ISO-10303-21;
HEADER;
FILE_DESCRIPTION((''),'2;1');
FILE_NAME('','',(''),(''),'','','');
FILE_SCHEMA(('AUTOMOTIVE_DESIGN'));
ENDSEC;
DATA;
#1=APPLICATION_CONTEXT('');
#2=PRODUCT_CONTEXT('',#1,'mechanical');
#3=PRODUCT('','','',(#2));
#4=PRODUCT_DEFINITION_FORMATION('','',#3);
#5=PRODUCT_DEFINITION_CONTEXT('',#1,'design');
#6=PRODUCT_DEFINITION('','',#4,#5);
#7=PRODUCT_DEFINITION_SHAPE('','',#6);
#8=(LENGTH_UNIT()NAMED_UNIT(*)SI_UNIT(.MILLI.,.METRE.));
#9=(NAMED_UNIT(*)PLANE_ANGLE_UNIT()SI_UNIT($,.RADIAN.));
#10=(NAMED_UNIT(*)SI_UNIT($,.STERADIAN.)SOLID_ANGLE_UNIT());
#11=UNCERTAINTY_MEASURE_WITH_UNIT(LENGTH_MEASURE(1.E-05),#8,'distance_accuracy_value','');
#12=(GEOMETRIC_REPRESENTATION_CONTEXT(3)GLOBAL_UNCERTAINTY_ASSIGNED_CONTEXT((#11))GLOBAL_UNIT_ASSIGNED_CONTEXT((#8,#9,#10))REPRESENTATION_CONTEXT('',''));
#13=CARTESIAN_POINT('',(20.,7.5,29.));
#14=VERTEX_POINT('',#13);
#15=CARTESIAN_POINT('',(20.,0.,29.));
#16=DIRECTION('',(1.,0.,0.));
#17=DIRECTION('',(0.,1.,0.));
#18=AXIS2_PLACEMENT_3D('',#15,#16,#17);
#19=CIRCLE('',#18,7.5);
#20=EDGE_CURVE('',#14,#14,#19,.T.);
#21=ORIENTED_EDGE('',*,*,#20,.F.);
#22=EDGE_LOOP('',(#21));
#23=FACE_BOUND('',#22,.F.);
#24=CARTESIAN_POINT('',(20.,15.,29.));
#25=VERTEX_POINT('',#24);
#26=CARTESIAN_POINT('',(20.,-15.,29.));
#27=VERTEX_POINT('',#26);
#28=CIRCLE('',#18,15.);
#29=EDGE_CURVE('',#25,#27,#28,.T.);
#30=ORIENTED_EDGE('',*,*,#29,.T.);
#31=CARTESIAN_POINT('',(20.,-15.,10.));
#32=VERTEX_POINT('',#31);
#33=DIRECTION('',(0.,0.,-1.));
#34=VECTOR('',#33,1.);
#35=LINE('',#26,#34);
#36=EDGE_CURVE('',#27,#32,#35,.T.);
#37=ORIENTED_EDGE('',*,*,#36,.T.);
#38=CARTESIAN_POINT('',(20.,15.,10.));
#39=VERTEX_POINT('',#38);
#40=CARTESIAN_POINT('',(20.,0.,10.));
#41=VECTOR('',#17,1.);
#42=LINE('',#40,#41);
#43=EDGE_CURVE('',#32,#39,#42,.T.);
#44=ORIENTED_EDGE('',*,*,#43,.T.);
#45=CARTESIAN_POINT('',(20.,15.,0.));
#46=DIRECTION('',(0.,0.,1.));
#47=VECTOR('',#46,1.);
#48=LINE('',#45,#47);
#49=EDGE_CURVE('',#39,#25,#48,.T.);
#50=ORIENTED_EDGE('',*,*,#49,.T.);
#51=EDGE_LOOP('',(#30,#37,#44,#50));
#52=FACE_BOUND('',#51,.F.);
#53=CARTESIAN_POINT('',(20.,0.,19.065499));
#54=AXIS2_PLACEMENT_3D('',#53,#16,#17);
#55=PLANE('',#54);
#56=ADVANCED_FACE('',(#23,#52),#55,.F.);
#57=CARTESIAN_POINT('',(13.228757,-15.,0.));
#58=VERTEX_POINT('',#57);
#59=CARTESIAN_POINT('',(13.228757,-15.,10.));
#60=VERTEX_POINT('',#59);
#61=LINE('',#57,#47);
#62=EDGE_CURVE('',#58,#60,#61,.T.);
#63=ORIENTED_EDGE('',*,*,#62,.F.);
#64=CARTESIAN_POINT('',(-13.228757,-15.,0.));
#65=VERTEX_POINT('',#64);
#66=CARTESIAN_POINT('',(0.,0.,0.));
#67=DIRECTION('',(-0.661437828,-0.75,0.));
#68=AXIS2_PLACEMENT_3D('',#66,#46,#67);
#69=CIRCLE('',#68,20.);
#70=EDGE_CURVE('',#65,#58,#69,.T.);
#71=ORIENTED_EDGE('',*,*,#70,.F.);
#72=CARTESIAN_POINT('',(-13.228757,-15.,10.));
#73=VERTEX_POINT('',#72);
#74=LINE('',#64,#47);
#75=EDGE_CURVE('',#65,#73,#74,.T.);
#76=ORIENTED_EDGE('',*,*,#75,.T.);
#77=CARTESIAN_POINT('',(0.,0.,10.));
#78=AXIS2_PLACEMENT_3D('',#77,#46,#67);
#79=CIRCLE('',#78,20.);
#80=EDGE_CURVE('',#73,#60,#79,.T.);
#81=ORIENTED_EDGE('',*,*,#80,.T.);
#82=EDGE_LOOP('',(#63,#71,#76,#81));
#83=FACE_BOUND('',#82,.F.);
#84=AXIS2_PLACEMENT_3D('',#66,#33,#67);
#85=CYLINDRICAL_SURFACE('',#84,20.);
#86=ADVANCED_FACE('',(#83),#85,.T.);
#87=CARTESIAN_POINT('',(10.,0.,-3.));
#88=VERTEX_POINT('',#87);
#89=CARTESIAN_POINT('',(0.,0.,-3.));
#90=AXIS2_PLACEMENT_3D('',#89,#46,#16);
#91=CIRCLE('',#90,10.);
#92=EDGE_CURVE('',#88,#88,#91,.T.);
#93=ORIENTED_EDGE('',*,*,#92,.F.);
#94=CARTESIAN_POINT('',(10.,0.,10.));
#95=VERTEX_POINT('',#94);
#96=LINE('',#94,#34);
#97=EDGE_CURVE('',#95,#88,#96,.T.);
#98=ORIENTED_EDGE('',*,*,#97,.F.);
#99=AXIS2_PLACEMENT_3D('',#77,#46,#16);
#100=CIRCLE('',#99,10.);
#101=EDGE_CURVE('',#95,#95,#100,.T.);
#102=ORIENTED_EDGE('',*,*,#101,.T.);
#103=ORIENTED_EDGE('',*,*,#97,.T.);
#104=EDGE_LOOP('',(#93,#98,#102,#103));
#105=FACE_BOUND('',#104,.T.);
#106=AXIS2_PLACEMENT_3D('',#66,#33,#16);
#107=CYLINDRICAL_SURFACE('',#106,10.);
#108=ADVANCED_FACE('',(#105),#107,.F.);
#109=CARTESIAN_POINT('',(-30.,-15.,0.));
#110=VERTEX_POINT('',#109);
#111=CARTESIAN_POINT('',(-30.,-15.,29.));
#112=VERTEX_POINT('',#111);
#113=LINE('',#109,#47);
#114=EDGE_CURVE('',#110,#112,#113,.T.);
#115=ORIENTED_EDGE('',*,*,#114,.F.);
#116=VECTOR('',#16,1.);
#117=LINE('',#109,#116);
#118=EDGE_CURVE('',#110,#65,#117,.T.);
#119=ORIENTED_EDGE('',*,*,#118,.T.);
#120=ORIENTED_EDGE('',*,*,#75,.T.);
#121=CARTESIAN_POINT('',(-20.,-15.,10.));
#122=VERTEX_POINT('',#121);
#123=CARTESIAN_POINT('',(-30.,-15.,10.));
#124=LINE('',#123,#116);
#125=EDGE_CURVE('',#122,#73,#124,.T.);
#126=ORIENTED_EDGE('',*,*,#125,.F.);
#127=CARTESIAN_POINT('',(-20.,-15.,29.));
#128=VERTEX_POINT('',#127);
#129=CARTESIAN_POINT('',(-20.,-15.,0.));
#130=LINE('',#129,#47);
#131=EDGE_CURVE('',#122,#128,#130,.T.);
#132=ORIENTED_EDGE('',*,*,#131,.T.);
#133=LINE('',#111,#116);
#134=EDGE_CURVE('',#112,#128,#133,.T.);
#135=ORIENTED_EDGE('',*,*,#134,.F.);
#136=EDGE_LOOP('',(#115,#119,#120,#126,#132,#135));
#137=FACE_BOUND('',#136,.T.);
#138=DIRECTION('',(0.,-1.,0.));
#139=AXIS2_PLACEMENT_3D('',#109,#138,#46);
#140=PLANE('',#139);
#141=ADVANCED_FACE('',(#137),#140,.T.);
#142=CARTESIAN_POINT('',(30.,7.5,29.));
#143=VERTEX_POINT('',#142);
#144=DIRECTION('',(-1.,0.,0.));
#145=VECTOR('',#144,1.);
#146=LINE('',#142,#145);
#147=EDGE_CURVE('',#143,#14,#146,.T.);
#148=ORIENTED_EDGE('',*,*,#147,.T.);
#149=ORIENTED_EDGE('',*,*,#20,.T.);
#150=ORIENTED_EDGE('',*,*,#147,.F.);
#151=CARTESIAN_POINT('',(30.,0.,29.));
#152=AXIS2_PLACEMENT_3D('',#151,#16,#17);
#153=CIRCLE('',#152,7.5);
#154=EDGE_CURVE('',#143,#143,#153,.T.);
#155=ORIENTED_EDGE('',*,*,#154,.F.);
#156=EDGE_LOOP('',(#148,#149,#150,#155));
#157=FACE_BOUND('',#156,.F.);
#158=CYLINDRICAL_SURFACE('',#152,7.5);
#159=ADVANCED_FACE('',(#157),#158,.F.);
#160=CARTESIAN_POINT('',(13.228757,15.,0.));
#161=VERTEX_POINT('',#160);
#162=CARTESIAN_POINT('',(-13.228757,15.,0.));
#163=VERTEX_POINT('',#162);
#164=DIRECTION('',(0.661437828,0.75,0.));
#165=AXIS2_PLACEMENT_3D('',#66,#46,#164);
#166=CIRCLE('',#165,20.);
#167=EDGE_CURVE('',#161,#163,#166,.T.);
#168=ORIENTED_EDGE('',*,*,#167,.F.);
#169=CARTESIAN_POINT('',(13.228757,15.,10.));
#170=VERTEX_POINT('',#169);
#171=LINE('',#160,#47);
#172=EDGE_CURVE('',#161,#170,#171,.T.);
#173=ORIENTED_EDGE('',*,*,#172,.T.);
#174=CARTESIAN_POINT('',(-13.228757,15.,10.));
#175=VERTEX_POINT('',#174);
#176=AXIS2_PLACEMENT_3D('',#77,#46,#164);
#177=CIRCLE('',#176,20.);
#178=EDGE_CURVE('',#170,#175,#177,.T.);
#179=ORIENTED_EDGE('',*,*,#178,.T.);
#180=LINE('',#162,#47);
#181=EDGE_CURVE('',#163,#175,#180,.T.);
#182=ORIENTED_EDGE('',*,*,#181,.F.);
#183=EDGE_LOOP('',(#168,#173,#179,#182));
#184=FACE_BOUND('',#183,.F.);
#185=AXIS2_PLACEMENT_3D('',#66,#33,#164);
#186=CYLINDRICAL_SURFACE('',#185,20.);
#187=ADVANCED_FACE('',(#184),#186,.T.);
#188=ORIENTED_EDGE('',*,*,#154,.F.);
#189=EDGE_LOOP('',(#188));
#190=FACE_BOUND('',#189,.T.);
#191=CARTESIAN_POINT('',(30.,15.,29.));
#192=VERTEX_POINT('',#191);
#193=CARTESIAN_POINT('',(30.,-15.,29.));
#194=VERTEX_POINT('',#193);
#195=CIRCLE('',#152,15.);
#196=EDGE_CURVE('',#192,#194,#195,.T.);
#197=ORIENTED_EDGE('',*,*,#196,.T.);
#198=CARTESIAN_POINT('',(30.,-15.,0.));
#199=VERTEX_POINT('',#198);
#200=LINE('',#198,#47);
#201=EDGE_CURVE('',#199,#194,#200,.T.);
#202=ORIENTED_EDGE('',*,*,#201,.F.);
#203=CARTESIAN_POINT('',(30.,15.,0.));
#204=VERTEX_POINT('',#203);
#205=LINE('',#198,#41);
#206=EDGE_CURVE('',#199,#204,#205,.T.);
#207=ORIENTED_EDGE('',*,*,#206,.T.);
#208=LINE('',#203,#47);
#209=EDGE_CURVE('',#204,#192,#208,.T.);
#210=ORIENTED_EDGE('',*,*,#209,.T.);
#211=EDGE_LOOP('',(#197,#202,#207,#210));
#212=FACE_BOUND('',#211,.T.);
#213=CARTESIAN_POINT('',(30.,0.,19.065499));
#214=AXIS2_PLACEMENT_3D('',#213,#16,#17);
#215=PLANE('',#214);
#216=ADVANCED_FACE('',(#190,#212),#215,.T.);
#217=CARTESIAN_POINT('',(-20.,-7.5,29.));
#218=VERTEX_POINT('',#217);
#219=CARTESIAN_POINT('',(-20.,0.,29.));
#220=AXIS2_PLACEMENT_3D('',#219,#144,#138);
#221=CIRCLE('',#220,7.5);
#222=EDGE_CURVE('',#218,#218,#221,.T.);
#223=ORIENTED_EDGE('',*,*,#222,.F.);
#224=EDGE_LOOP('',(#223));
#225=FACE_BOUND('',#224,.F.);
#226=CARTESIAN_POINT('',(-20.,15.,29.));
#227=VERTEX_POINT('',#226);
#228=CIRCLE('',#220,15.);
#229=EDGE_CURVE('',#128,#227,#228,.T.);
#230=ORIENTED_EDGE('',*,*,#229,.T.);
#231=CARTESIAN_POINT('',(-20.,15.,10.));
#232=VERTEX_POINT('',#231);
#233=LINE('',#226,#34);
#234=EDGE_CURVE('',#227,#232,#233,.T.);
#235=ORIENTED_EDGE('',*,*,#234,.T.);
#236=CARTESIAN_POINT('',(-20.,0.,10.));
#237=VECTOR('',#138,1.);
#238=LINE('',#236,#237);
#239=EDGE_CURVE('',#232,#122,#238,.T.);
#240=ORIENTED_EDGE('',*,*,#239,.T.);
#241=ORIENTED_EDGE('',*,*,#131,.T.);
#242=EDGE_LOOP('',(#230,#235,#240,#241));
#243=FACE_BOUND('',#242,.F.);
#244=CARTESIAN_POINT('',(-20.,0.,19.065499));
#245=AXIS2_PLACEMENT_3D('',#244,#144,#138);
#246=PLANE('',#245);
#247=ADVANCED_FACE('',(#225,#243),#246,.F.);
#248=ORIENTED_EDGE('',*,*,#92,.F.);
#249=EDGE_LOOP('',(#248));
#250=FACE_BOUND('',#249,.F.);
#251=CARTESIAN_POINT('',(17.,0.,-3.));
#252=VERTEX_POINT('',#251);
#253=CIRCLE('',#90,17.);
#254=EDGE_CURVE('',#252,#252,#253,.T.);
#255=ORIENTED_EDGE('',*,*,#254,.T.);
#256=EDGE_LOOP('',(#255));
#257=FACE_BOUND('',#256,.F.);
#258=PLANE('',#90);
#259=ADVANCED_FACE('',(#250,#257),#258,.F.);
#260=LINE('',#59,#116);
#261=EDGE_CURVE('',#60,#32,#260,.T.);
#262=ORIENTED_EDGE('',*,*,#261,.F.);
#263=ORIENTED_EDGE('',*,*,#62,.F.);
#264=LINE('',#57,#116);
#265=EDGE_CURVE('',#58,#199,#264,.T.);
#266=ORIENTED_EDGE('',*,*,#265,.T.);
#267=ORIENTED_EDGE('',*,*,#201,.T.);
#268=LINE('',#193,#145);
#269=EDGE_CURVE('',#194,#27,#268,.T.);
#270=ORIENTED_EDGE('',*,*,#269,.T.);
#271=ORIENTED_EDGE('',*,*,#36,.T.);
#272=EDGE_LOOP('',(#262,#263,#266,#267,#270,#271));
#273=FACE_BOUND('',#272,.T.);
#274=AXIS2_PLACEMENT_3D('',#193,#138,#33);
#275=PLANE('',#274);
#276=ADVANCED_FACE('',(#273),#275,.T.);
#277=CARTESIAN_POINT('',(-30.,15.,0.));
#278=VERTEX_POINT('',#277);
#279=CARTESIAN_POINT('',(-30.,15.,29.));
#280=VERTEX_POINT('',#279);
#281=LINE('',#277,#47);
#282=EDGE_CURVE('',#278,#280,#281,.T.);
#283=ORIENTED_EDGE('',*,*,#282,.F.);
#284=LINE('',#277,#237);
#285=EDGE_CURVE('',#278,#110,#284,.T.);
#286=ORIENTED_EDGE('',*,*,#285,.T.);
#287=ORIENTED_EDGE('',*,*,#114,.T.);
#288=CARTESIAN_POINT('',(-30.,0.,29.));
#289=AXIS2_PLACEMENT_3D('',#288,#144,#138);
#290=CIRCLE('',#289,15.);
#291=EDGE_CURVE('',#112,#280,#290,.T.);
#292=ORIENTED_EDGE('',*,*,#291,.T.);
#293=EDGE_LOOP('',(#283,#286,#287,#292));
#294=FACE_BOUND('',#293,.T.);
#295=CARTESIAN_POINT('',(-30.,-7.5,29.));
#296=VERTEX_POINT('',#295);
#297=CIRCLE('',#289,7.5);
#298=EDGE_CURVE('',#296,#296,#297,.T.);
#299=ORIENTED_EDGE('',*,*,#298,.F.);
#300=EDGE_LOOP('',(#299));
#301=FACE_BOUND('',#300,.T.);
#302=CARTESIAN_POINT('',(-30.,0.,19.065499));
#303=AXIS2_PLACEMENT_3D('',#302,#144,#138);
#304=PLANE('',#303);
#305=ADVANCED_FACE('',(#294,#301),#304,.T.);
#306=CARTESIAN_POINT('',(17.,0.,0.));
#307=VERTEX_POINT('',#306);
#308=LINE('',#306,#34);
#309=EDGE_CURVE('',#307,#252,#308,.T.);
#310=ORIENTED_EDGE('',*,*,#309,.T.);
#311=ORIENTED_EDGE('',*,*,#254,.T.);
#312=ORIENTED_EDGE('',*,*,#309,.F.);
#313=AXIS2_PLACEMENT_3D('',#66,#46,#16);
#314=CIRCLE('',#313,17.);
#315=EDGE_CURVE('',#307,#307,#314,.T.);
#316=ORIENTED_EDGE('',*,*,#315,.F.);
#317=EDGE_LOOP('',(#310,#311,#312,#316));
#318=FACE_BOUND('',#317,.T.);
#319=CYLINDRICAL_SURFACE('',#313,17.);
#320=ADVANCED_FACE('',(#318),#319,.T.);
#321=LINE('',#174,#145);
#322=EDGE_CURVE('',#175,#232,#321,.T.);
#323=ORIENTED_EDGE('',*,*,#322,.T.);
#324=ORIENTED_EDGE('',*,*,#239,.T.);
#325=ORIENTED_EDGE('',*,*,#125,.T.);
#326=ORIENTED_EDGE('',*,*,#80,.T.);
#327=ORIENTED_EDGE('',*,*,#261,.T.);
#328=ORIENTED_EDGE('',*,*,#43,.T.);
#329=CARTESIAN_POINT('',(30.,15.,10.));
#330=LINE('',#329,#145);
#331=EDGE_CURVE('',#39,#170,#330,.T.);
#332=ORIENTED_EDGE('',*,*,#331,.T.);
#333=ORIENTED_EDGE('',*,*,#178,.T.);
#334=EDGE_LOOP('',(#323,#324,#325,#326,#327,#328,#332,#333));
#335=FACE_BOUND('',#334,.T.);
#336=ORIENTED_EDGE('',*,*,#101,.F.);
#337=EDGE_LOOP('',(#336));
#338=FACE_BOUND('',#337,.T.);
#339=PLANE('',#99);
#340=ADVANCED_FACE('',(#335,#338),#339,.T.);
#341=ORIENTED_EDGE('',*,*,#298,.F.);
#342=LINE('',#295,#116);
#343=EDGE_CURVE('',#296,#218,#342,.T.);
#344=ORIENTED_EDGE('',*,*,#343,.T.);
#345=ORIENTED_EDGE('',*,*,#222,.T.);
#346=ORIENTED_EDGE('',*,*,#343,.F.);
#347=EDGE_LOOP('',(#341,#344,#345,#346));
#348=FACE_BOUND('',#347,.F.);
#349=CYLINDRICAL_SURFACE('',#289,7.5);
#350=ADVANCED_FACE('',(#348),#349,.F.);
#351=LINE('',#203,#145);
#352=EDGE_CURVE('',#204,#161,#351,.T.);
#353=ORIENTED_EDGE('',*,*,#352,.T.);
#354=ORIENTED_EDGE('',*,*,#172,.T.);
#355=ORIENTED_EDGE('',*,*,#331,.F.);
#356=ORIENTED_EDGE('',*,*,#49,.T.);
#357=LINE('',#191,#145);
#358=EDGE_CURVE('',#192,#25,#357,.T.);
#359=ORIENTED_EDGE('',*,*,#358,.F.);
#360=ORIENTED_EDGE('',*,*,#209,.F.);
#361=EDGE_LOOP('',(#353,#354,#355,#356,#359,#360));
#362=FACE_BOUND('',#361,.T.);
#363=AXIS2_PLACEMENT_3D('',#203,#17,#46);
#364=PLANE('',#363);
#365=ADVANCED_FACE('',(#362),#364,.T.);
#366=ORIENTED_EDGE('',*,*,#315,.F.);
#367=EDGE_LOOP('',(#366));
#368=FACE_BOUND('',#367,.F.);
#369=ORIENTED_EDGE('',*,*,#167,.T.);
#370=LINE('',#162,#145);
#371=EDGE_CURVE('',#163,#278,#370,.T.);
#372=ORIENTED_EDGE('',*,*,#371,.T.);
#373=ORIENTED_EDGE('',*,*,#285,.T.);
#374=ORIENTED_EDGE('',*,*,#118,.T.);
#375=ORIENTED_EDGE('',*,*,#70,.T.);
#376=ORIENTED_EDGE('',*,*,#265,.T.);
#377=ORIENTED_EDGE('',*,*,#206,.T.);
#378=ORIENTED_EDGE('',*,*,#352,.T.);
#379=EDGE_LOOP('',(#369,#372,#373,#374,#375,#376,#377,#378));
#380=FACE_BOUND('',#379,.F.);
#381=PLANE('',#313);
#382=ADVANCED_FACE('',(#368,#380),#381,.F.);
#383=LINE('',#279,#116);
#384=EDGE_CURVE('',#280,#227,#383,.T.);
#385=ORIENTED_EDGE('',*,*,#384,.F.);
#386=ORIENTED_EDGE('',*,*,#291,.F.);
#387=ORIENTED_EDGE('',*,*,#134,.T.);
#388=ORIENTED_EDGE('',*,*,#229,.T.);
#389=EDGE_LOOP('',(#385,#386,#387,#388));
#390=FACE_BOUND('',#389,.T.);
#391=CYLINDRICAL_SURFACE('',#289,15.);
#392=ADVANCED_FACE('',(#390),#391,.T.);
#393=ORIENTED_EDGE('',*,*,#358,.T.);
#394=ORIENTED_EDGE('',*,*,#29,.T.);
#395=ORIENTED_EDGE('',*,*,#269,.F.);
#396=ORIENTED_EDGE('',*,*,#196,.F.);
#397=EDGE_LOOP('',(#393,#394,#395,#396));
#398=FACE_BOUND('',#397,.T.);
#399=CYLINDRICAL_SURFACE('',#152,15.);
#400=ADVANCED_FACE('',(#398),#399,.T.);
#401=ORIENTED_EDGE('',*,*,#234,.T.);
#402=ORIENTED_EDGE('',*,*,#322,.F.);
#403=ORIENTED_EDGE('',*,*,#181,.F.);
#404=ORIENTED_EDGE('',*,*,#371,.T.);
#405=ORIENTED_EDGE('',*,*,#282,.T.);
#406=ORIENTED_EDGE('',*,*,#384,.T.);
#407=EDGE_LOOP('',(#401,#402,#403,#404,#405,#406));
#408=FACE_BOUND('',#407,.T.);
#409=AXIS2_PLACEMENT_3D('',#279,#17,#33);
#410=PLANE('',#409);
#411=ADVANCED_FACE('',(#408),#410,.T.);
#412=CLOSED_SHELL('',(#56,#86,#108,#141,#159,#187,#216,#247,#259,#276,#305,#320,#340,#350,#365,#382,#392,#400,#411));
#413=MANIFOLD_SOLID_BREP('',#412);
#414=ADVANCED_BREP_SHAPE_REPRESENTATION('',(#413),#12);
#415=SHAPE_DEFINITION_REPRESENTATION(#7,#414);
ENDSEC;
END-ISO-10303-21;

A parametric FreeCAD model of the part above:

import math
import FreeCAD as App
import Part
import Sketcher

V = App.Vector
Q = App.Units.Quantity

doc = App.newDocument("Part")
body = doc.addObject("PartDesign::Body", "Body")

# Sketch on XY plane
sketch1 = body.newObject("Sketcher::SketchObject", "Sketch")
sketch1.AttachmentSupport = (doc.getObject("XY_Plane"), [""])
sketch1.MapMode = "FlatFace"
sketch1.addGeometry([
    Part.LineSegment(V(-13, 15, 0), V(-30, 15, 0)),  # 0
    Part.LineSegment(V(-30, 15, 0), V(-30, -15, 0)),  # 1
    Part.LineSegment(V(-30, -15, 0), V(-13, -15, 0)),  # 2
    Part.ArcOfCircle(Part.Circle(V(0, 0, 0), V(0, 0, 1), 20), math.radians(-131), math.radians(-49)),  # 3
    Part.LineSegment(V(13, -15, 0), V(30, -15, 0)),  # 4
    Part.LineSegment(V(30, -15, 0), V(30, 15, 0)),  # 5
    Part.LineSegment(V(30, 15, 0), V(13, 15, 0)),  # 6
    Part.ArcOfCircle(Part.Circle(V(0, 0, 0), V(0, 0, 1), 20), math.radians(49), math.radians(131)),  # 7
    Part.Circle(V(0, 0, 0), V(0, 0, 1), 10),  # 8
], False)
sketch1.addConstraint([
    Sketcher.Constraint("Coincident", 0, 2, 1, 1),
    Sketcher.Constraint("Coincident", 1, 2, 2, 1),
    Sketcher.Constraint("Coincident", 2, 2, 3, 1),
    Sketcher.Constraint("Coincident", 3, 2, 4, 1),
    Sketcher.Constraint("Coincident", 4, 2, 5, 1),
    Sketcher.Constraint("Coincident", 5, 2, 6, 1),
    Sketcher.Constraint("Coincident", 6, 2, 7, 1),
    Sketcher.Constraint("Coincident", 7, 2, 0, 1),
    Sketcher.Constraint("Horizontal", 0),
    Sketcher.Constraint("Vertical", 1),
    Sketcher.Constraint("Horizontal", 2),
    Sketcher.Constraint("Horizontal", 4),
    Sketcher.Constraint("Vertical", 5),
    Sketcher.Constraint("Horizontal", 6),
    Sketcher.Constraint("Coincident", 3, 3, -1, 1),
    Sketcher.Constraint("Coincident", 7, 3, -1, 1),
    Sketcher.Constraint("Coincident", 8, 3, -1, 1),
    Sketcher.Constraint("Equal", 3, 7),
    Sketcher.Constraint("Symmetric", 0, 2, 4, 2, -1, 1),
    Sketcher.Constraint("Horizontal", 2, 2, 3, 2),
    Sketcher.Constraint("Horizontal", 0, 2, 5, 2),
    Sketcher.Constraint("Diameter", 8, Q("20 mm")),
    Sketcher.Constraint("Radius", 3, Q("20 mm")),
    Sketcher.Constraint("DistanceY", 1, 2, 1, 1, Q("30 mm")),
    Sketcher.Constraint("DistanceX", 0, 2, -1, 1, Q("30 mm")),
])
pad1 = body.newObject("PartDesign::Pad", "Pad")
pad1.Profile = sketch1
pad1.Length = 10

# Sketch on XY plane
sketch2 = body.newObject("Sketcher::SketchObject", "Sketch001")
sketch2.AttachmentSupport = (doc.getObject("XY_Plane"), [""])
sketch2.MapMode = "FlatFace"
sketch2.addGeometry([
    Part.Circle(V(0, 0, 0), V(0, 0, 1), 17),
    Part.Circle(V(0, 0, 0), V(0, 0, 1), 10),
], False)
sketch2.addConstraint([
    Sketcher.Constraint("Coincident", 0, 3, -1, 1),
    Sketcher.Constraint("Coincident", 1, 3, -1, 1),
    Sketcher.Constraint("Diameter", 0, Q("34 mm")),
    Sketcher.Constraint("Diameter", 1, Q("20 mm")),
])
pad2 = body.newObject("PartDesign::Pad", "Pad001")
pad2.Profile = sketch2
pad2.Length = 3
pad2.Reversed = True

# Sketch on YZ plane
sketch3 = body.newObject("Sketcher::SketchObject", "Sketch002")
sketch3.AttachmentSupport = (doc.getObject("YZ_Plane"), [""])
sketch3.MapMode = "FlatFace"
sketch3.AttachmentOffset = App.Placement(V(0, 0, 30), App.Rotation())
sketch3.addGeometry([
    Part.LineSegment(V(-15, 29, 0), V(-15, 0, 0)),  # 0
    Part.LineSegment(V(-15, 0, 0), V(15, 0, 0)),  # 1
    Part.LineSegment(V(15, 0, 0), V(15, 29, 0)),  # 2
    Part.ArcOfCircle(Part.Circle(V(0, 29, 0), V(0, 0, 1), 15), math.radians(0), math.radians(180)),  # 3
    Part.Circle(V(0, 29, 0), V(0, 0, 1), 8),  # 4
], False)
sketch3.addConstraint([
    Sketcher.Constraint("Coincident", 0, 2, 1, 1),
    Sketcher.Constraint("Coincident", 1, 2, 2, 1),
    Sketcher.Constraint("Tangent", 2, 2, 3, 1),
    Sketcher.Constraint("Tangent", 3, 2, 0, 1),
    Sketcher.Constraint("Vertical", 0),
    Sketcher.Constraint("Horizontal", 1),
    Sketcher.Constraint("Vertical", 2),
    Sketcher.Constraint("Coincident", 4, 3, 3, 3),
    Sketcher.Constraint("Symmetric", 0, 2, 1, 2, -1, 1),
    Sketcher.Constraint("Diameter", 4, Q("15 mm")),
    Sketcher.Constraint("Radius", 3, Q("15 mm")),
    Sketcher.Constraint("DistanceY", 0, 2, 0, 1, Q("29 mm")),
])
pad3 = body.newObject("PartDesign::Pad", "Pad002")
pad3.Profile = sketch3
pad3.Length = 10
pad3.Reversed = True

# Sketch on YZ plane
sketch4 = body.newObject("Sketcher::SketchObject", "Sketch003")
sketch4.AttachmentSupport = (doc.getObject("YZ_Plane"), [""])
sketch4.MapMode = "FlatFace"
sketch4.AttachmentOffset = App.Placement(V(0, 0, -30), App.Rotation())
sketch4.addGeometry([
    Part.LineSegment(V(15, 29, 0), V(15, 0, 0)),  # 0
    Part.LineSegment(V(15, 0, 0), V(-15, 0, 0)),  # 1
    Part.LineSegment(V(-15, 0, 0), V(-15, 29, 0)),  # 2
    Part.ArcOfCircle(Part.Circle(V(0, 29, 0), V(0, 0, 1), 15), math.radians(0), math.radians(180)),  # 3
    Part.Circle(V(0, 29, 0), V(0, 0, 1), 8),  # 4
], False)
sketch4.addConstraint([
    Sketcher.Constraint("Coincident", 0, 2, 1, 1),
    Sketcher.Constraint("Coincident", 1, 2, 2, 1),
    Sketcher.Constraint("Tangent", 2, 2, 3, 2),
    Sketcher.Constraint("Tangent", 3, 1, 0, 1),
    Sketcher.Constraint("Vertical", 0),
    Sketcher.Constraint("Horizontal", 1),
    Sketcher.Constraint("Vertical", 2),
    Sketcher.Constraint("Coincident", 4, 3, 3, 3),
    Sketcher.Constraint("Symmetric", 0, 2, 1, 2, -1, 1),
    Sketcher.Constraint("Diameter", 4, Q("15 mm")),
    Sketcher.Constraint("Radius", 3, Q("15 mm")),
    Sketcher.Constraint("DistanceY", 0, 2, 0, 1, Q("29 mm")),
])
pad4 = body.newObject("PartDesign::Pad", "Pad003")
pad4.Profile = sketch4
pad4.Length = 10

doc.recompute()
